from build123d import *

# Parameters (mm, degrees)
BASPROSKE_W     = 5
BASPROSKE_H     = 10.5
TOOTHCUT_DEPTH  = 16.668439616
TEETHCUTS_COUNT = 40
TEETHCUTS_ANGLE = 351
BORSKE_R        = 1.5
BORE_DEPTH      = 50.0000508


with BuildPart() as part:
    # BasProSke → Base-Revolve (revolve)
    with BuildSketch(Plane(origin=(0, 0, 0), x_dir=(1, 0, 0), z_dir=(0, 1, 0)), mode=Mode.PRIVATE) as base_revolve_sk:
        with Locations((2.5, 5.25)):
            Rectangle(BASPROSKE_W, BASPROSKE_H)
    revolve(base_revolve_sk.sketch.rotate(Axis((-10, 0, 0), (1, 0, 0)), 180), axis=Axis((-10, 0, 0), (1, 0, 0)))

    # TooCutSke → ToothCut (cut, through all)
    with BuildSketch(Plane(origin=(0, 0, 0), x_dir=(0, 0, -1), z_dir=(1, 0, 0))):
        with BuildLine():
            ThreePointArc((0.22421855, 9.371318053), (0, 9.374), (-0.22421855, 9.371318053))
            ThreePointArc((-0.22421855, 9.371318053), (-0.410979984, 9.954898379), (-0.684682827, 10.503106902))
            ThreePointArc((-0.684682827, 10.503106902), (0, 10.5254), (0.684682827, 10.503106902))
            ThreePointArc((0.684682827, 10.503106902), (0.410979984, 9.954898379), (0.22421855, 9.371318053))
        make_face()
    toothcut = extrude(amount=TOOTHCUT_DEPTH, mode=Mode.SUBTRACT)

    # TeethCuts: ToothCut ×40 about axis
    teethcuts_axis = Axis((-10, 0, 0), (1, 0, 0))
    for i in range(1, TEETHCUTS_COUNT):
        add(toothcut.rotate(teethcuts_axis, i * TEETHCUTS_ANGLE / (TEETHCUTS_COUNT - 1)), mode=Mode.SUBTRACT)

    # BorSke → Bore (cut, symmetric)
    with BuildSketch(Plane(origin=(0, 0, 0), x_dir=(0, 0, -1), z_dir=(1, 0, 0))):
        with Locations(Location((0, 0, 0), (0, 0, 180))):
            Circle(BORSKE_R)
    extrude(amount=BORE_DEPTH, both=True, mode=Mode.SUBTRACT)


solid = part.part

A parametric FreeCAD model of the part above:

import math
import FreeCAD as App
import Part
import Sketcher

V = App.Vector
Q = App.Units.Quantity

doc = App.newDocument("Part")
body = doc.addObject("PartDesign::Body", "Body")

sketch1 = body.newObject("Sketcher::SketchObject", "Sketch")
sketch1.AttachmentSupport = (doc.getObject("XZ_Plane"), [""])
sketch1.MapMode = "FlatFace"
sketch1.addGeometry(Part.LineSegment(V(0, -10.5, 0), V(0, 0, 0)), False)
sketch1.addGeometry(Part.LineSegment(V(0, 0, 0), V(5, 0, 0)), False)
sketch1.addGeometry(Part.LineSegment(V(5, 0, 0), V(5, -10.5, 0)), False)
sketch1.addGeometry(Part.LineSegment(V(5, -10.5, 0), V(0, -10.5, 0)), False)
sketch1.addConstraint(Sketcher.Constraint("Coincident", 0, 2, 1, 1))
sketch1.addConstraint(Sketcher.Constraint("Coincident", 1, 2, 2, 1))
sketch1.addConstraint(Sketcher.Constraint("Coincident", 2, 2, 3, 1))
sketch1.addConstraint(Sketcher.Constraint("Coincident", 3, 2, 0, 1))
sketch1.addConstraint(Sketcher.Constraint("Vertical", 0))
sketch1.addConstraint(Sketcher.Constraint("Horizontal", 1))
sketch1.addConstraint(Sketcher.Constraint("Vertical", 2))
sketch1.addConstraint(Sketcher.Constraint("Horizontal", 3))
sketch1.addConstraint(Sketcher.Constraint("Coincident", 0, 2, -1, 1))
sketch1.addConstraint(Sketcher.Constraint("DistanceX", 1, 1, 1, 2, Q("5 mm")))
sketch1.addConstraint(Sketcher.Constraint("DistanceY", 0, 1, 0, 2, Q("10.5 mm")))
revolution = body.newObject("PartDesign::Revolution", "Revolution")
revolution.Profile = sketch1
revolution.ReferenceAxis = (sketch1, ["H_Axis"])
revolution.Angle = 360

sketch2 = body.newObject("Sketcher::SketchObject", "Sketch001")
sketch2.AttachmentSupport = (doc.getObject("YZ_Plane"), [""])
sketch2.MapMode = "FlatFace"
sketch2.addGeometry(Part.ArcOfCircle(Part.Circle(V(-0.000002, 0, 0), V(0, 0, 1), 9.374002), math.radians(-1.370599), math.radians(1.370599)), False)
sketch2.addGeometry(Part.ArcOfCircle(Part.Circle(V(8.447494, -4.116075, 0), V(0, 0, 1), 4), math.radians(59.075819), math.radians(76.64663)), False)
sketch2.addGeometry(Part.ArcOfCircle(Part.Circle(V(0, 0, 0), V(0, 0, 1), 10.5254), math.radians(-3.729754), math.radians(3.729754)), False)
sketch2.addGeometry(Part.ArcOfCircle(Part.Circle(V(8.447494, 4.116075, 0), V(0, 0, 1), 4), math.radians(-76.64663), math.radians(-59.075819)), False)
sketch2.addConstraint(Sketcher.Constraint("Coincident", 0, 1, 1, 2))
sketch2.addConstraint(Sketcher.Constraint("Coincident", 1, 1, 2, 1))
sketch2.addConstraint(Sketcher.Constraint("Coincident", 2, 2, 3, 2))
sketch2.addConstraint(Sketcher.Constraint("Coincident", 3, 1, 0, 2))
sketch2.addConstraint(Sketcher.Constraint("Coincident", 0, 3, -1, 1))
sketch2.addConstraint(Sketcher.Constraint("Coincident", 2, 3, -1, 1))
sketch2.addConstraint(Sketcher.Constraint("Equal", 1, 3))
sketch2.addConstraint(Sketcher.Constraint("Symmetric", 1, 3, 3, 3, -1))
sketch2.addConstraint(Sketcher.Constraint("Radius", 1, Q("4 mm")))
sketch2.addConstraint(Sketcher.Constraint("Radius", 0, Q("9.374002 mm")))
sketch2.addConstraint(Sketcher.Constraint("Radius", 2, Q("10.5254 mm")))
sketch2.addConstraint(Sketcher.Constraint("DistanceY", 0, 1, 2, 2, Q("0.908901 mm")))
sketch2.addConstraint(Sketcher.Constraint("DistanceY", 0, 1, -1, 1, Q("0.224219 mm")))
pocket1 = body.newObject("PartDesign::Pocket", "Pocket")
pocket1.Profile = sketch2
pocket1.Type = "ThroughAll"
pocket1.Reversed = True
doc.recompute()

polarpattern = body.newObject("PartDesign::PolarPattern", "PolarPattern")
polarpattern.Originals = [pocket1]
polarpattern.Axis = (doc.getObject("X_Axis"), [""])
polarpattern.Angle = 360
polarpattern.Occurrences = 40
body.Tip = polarpattern

sketch3 = body.newObject("Sketcher::SketchObject", "Sketch002")
sketch3.AttachmentSupport = (doc.getObject("YZ_Plane"), [""])
sketch3.MapMode = "FlatFace"
sketch3.addGeometry(Part.Circle(V(0, 0, 0), V(0, 0, 1), 1.5), False)
sketch3.addConstraint(Sketcher.Constraint("Coincident", 0, 3, -1, 1))
sketch3.addConstraint(Sketcher.Constraint("Diameter", 0, Q("3 mm")))
pocket2 = body.newObject("PartDesign::Pocket", "Pocket001")
pocket2.Profile = sketch3
pocket2.Length = 100.000102
pocket2.Midplane = True

doc.recompute()
